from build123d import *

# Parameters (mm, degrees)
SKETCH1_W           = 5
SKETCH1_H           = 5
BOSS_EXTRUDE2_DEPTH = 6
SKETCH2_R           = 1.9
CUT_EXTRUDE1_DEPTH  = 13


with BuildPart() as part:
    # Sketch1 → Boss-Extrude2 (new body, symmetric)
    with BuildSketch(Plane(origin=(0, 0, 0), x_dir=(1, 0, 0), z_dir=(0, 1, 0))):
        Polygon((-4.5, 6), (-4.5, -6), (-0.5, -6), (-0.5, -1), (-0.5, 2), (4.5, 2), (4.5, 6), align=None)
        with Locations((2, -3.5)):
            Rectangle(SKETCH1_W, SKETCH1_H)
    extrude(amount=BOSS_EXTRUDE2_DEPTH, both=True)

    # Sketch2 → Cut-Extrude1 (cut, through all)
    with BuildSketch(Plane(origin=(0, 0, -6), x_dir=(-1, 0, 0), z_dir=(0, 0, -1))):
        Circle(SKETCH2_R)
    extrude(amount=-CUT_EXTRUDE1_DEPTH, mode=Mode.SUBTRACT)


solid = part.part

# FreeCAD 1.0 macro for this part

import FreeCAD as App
import Part
import Sketcher

doc = App.newDocument("Part")
body = doc.addObject("PartDesign::Body", "Body")

sketch1 = body.newObject("Sketcher::SketchObject", "Sketch")
sketch1.AttachmentSupport = (doc.getObject("XZ_Plane"), [""])
sketch1.MapMode = "FlatFace"
sketch1.addGeometry(Part.LineSegment(App.Vector(-4.5, -6, 0), App.Vector(-4.5, 6, 0)), False)
sketch1.addGeometry(Part.LineSegment(App.Vector(-4.5, 6, 0), App.Vector(4.5, 6, 0)), False)
sketch1.addGeometry(Part.LineSegment(App.Vector(4.5, 6, 0), App.Vector(4.5, 1, 0)), False)
sketch1.addGeometry(Part.LineSegment(App.Vector(4.5, 1, 0), App.Vector(-0.5, 1, 0)), False)
sketch1.addGeometry(Part.LineSegment(App.Vector(-0.5, 1, 0), App.Vector(-0.5, -2, 0)), False)
sketch1.addGeometry(Part.LineSegment(App.Vector(-0.5, -2, 0), App.Vector(4.5, -2, 0)), False)
sketch1.addGeometry(Part.LineSegment(App.Vector(4.5, -2, 0), App.Vector(4.5, -6, 0)), False)
sketch1.addGeometry(Part.LineSegment(App.Vector(4.5, -6, 0), App.Vector(-4.5, -6, 0)), False)
sketch1.addConstraint(Sketcher.Constraint("Coincident", 0, 2, 1, 1))
sketch1.addConstraint(Sketcher.Constraint("Coincident", 1, 2, 2, 1))
sketch1.addConstraint(Sketcher.Constraint("Coincident", 2, 2, 3, 1))
sketch1.addConstraint(Sketcher.Constraint("Coincident", 3, 2, 4, 1))
sketch1.addConstraint(Sketcher.Constraint("Coincident", 4, 2, 5, 1))
sketch1.addConstraint(Sketcher.Constraint("Coincident", 5, 2, 6, 1))
sketch1.addConstraint(Sketcher.Constraint("Coincident", 6, 2, 7, 1))
sketch1.addConstraint(Sketcher.Constraint("Coincident", 7, 2, 0, 1))
sketch1.addConstraint(Sketcher.Constraint("Vertical", 0))
sketch1.addConstraint(Sketcher.Constraint("Horizontal", 1))
sketch1.addConstraint(Sketcher.Constraint("Vertical", 2))
sketch1.addConstraint(Sketcher.Constraint("Horizontal", 3))
sketch1.addConstraint(Sketcher.Constraint("Vertical", 4))
sketch1.addConstraint(Sketcher.Constraint("Horizontal", 5))
sketch1.addConstraint(Sketcher.Constraint("Vertical", 6))
sketch1.addConstraint(Sketcher.Constraint("Horizontal", 7))
sketch1.addConstraint(Sketcher.Constraint("Symmetric", 0, 2, 6, 2, -1, 1))
sketch1.addConstraint(Sketcher.Constraint("Vertical", 2, 2, 5, 2))
sketch1.addConstraint(Sketcher.Constraint("Equal", 5, 2))
sketch1.addConstraint(Sketcher.Constraint("DistanceX", 1, 1, 1, 2, 9.0))
sketch1.addConstraint(Sketcher.Constraint("DistanceX", 3, 2, 3, 1, 5.0))
sketch1.addConstraint(Sketcher.Constraint("DistanceY", 0, 1, 0, 2, 12.0))
sketch1.addConstraint(Sketcher.Constraint("DistanceY", 4, 2, 4, 1, 3.0))
pad1 = body.newObject("PartDesign::Pad", "Pad")
pad1.Profile = sketch1
pad1.Length = 12
pad1.Midplane = True

sketch2 = body.newObject("Sketcher::SketchObject", "Sketch001")
sketch2.AttachmentSupport = (doc.getObject("XY_Plane"), [""])
sketch2.MapMode = "FlatFace"
sketch2.AttachmentOffset = App.Placement(App.Vector(0, 0, -6), App.Rotation())
sketch2.addGeometry(Part.Circle(App.Vector(0, 0, 0), App.Vector(0, 0, 1), 1.9), False)
sketch2.addConstraint(Sketcher.Constraint("Coincident", 0, 3, -1, 1))
sketch2.addConstraint(Sketcher.Constraint("Diameter", 0, 3.8))
pocket1 = body.newObject("PartDesign::Pocket", "Pocket")
pocket1.Profile = sketch2
pocket1.Type = "ThroughAll"
pocket1.Reversed = True

doc.recompute()
